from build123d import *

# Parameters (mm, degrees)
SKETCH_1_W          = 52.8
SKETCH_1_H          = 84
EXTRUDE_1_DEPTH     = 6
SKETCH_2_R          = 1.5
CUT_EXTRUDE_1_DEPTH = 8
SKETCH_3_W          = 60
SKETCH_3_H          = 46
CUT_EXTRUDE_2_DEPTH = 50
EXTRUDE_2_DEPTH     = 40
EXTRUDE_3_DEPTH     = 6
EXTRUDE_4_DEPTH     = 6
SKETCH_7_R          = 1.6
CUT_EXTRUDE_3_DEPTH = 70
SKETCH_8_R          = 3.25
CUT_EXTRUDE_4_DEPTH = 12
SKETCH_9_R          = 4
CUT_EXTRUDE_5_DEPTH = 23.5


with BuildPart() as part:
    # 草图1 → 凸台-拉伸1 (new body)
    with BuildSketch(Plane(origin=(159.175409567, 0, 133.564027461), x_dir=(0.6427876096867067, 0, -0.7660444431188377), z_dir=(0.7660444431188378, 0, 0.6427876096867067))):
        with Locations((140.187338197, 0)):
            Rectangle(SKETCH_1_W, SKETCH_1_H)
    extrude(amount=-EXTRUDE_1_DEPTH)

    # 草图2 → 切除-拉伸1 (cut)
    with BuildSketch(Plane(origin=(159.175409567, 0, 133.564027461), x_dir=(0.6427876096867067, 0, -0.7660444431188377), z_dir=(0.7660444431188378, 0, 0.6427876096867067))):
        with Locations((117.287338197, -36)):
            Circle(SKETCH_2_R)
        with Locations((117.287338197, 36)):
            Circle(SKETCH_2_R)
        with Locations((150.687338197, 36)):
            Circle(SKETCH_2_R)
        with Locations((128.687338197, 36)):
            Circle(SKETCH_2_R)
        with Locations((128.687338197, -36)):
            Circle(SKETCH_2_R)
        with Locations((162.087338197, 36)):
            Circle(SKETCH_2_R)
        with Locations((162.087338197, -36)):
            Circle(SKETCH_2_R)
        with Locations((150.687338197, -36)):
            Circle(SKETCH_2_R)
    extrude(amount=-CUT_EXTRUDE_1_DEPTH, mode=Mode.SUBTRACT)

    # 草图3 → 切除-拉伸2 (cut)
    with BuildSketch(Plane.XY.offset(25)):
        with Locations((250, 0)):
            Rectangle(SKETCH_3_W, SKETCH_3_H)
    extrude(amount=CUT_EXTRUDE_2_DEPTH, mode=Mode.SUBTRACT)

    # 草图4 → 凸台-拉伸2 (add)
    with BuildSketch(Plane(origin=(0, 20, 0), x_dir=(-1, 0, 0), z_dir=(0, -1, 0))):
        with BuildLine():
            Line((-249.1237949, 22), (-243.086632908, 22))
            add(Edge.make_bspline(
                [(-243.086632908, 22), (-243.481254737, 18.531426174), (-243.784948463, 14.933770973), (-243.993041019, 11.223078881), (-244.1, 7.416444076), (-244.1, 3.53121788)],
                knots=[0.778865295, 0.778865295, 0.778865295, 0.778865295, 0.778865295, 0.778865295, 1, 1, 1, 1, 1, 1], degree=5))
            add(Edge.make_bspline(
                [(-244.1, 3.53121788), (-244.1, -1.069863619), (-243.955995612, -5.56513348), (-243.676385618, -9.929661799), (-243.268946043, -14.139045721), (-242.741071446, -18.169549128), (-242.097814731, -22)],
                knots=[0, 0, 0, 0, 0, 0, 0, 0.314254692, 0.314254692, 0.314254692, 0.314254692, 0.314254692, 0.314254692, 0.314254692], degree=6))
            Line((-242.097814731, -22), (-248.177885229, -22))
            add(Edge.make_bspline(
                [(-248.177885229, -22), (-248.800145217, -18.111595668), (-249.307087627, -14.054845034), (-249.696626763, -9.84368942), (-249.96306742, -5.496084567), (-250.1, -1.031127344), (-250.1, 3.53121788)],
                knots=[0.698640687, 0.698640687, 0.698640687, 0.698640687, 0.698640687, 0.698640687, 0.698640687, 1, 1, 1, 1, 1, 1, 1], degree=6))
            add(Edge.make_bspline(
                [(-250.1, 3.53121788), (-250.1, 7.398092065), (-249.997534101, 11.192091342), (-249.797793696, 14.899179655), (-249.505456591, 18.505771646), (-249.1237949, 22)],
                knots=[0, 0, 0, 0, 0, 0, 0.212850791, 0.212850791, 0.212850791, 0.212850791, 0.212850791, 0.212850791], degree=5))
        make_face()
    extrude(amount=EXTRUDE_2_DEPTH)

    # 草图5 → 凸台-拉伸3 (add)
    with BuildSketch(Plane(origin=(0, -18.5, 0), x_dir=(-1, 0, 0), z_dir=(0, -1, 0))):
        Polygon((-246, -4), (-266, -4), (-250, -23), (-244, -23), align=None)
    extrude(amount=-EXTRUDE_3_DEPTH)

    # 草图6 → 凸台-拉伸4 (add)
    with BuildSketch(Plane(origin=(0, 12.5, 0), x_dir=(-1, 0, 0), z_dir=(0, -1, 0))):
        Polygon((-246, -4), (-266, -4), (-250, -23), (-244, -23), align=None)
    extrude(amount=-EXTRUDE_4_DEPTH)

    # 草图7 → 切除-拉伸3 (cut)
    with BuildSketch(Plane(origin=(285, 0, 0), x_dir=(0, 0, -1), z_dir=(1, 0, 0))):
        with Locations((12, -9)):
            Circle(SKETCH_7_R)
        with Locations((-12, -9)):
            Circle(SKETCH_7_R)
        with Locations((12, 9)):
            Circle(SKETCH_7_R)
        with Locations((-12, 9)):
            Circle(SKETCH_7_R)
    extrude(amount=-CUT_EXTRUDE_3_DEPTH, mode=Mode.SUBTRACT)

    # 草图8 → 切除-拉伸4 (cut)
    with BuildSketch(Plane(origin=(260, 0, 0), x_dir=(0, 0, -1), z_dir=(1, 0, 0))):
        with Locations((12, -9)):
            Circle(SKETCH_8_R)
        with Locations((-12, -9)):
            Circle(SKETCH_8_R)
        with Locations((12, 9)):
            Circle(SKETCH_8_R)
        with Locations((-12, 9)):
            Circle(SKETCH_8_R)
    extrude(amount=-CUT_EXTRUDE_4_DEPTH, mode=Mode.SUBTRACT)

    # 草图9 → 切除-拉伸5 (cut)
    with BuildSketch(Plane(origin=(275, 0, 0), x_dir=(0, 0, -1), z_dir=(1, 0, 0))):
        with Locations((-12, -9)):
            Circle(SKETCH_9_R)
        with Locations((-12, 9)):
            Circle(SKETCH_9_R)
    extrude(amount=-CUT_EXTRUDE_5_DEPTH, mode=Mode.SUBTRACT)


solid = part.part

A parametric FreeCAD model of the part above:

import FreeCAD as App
import Part
import Sketcher
from FreeCAD import Vector


def add_polygon(sketch, points):
    """Adds a closed chain of lines whose ends are joined by coincident constraints."""
    first, n = sketch.GeometryCount, len(points)
    for a, b in zip(points, points[1:] + points[:1]):
        sketch.addGeometry(Part.LineSegment(App.Vector(*a, 0), App.Vector(*b, 0)), False)
    for i in range(n):
        sketch.addConstraint(Sketcher.Constraint("Coincident", first + i, 2, first + (i + 1) % n, 1))

doc = App.newDocument("Part")
body = doc.addObject("PartDesign::Body", "Body")

sketch1 = doc.addObject("Sketcher::SketchObject", "Sketch")
body.addObject(sketch1)
sketch1.Placement = App.Placement(Vector(159.17541, 0, 133.564027), App.Rotation(Vector(0.64278761, 0, -0.766044443), Vector(0, 1, 0), Vector(0.766044443, 0, 0.64278761), "ZXY"))
add_polygon(sketch1, [(113.787338, 42), (113.787338, -42), (166.587338, -42), (166.587338, 42)])
sketch1.addConstraint([
    Sketcher.Constraint("Vertical", 0),
    Sketcher.Constraint("Horizontal", 1),
    Sketcher.Constraint("Vertical", 2),
    Sketcher.Constraint("Horizontal", 3),
    Sketcher.Constraint("DistanceY", 0, 2, 0, 1, 84.0),
    Sketcher.Constraint("DistanceX", 1, 1, 1, 2, 52.8),
    Sketcher.Constraint("DistanceY", 0, 2, -1, 1, 42.0),
    Sketcher.Constraint("DistanceX", -1, 1, 0, 2, 113.787338),
])
pad1 = doc.addObject("PartDesign::Pad", "Pad")
body.addObject(pad1)
pad1.Profile = sketch1
pad1.Length = 6
pad1.Reversed = True

sketch2 = doc.addObject("Sketcher::SketchObject", "Sketch001")
body.addObject(sketch2)
sketch2.Placement = App.Placement(Vector(159.17541, 0, 133.564027), App.Rotation(Vector(0.64278761, 0, -0.766044443), Vector(0, 1, 0), Vector(0.766044443, 0, 0.64278761), "ZXY"))
sketch2.addGeometry([
    Part.Circle(Vector(117.287338, -36, 0), Vector(0, 0, 1), 1.5),
    Part.Circle(Vector(117.287338, 36, 0), Vector(0, 0, 1), 1.5),
    Part.Circle(Vector(150.687338, 36, 0), Vector(0, 0, 1), 1.5),
    Part.Circle(Vector(128.687338, 36, 0), Vector(0, 0, 1), 1.5),
    Part.Circle(Vector(128.687338, -36, 0), Vector(0, 0, 1), 1.5),
    Part.Circle(Vector(162.087338, 36, 0), Vector(0, 0, 1), 1.5),
    Part.Circle(Vector(162.087338, -36, 0), Vector(0, 0, 1), 1.5),
    Part.Circle(Vector(150.687338, -36, 0), Vector(0, 0, 1), 1.5),
], False)
sketch2.addConstraint([
    Sketcher.Constraint("Equal", 0, 1),
    Sketcher.Constraint("Equal", 1, 2),
    Sketcher.Constraint("Equal", 2, 3),
    Sketcher.Constraint("Equal", 3, 4),
    Sketcher.Constraint("Equal", 4, 5),
    Sketcher.Constraint("Equal", 5, 6),
    Sketcher.Constraint("Equal", 6, 7),
    Sketcher.Constraint("Symmetric", 0, 3, 1, 3, -1),
    Sketcher.Constraint("Symmetric", 3, 3, 4, 3, -1),
    Sketcher.Constraint("Symmetric", 5, 3, 6, 3, -1),
    Sketcher.Constraint("Symmetric", 2, 3, 7, 3, -1),
    Sketcher.Constraint("Horizontal", 1, 3, 2, 3),
    Sketcher.Constraint("Horizontal", 2, 3, 3, 3),
    Sketcher.Constraint("Horizontal", 3, 3, 5, 3),
    Sketcher.Constraint("Diameter", 0, 3.0),
    Sketcher.Constraint("DistanceY", 0, 3, -1, 1, 36.0),
    Sketcher.Constraint("DistanceX", 3, 3, 2, 3, 22.0),
    Sketcher.Constraint("DistanceX", 1, 3, 2, 3, 33.4),
    Sketcher.Constraint("DistanceX", 2, 3, 5, 3, 11.4),
    Sketcher.Constraint("DistanceX", -1, 1, 0, 3, 117.287338),
])
pocket1 = doc.addObject("PartDesign::Pocket", "Pocket")
body.addObject(pocket1)
pocket1.Profile = sketch2
pocket1.Length = 8

sketch3 = doc.addObject("Sketcher::SketchObject", "Sketch002")
body.addObject(sketch3)
sketch3.AttachmentSupport = (doc.XY_Plane, [""])
sketch3.MapMode = "FlatFace"
sketch3.AttachmentOffset = App.Placement(Vector(0, 0, 25), App.Rotation())
add_polygon(sketch3, [(220, 23), (220, -23), (280, -23), (280, 23)])
sketch3.addConstraint([
    Sketcher.Constraint("Vertical", 0),
    Sketcher.Constraint("Horizontal", 1),
    Sketcher.Constraint("Vertical", 2),
    Sketcher.Constraint("Horizontal", 3),
    Sketcher.Constraint("DistanceX", 1, 1, 1, 2, 60.0),
    Sketcher.Constraint("DistanceY", 0, 2, 0, 1, 46.0),
    Sketcher.Constraint("DistanceX", -1, 1, 0, 2, 220.0),
    Sketcher.Constraint("DistanceY", 0, 2, -1, 1, 23.0),
])
pocket2 = doc.addObject("PartDesign::Pocket", "Pocket001")
body.addObject(pocket2)
pocket2.Profile = sketch3
pocket2.Length = 50
pocket2.Reversed = True

sketch4 = doc.addObject("Sketcher::SketchObject", "Sketch003")
body.addObject(sketch4)
sketch4.AttachmentSupport = (doc.XZ_Plane, [""])
sketch4.MapMode = "FlatFace"
sketch4.AttachmentOffset = App.Placement(Vector(0, 0, -20), App.Rotation())
sketch4.addGeometry([
    Part.LineSegment(Vector(243.086633, -22, 0), Vector(249.123795, -22, 0)),
    Part.BSplineCurve([Vector(248.177885, 22, 0), Vector(248.800145, 18.111596, 0), Vector(249.307088, 14.054845, 0), Vector(249.696627, 9.843689, 0), Vector(249.963067, 5.496085, 0), Vector(250.1, 1.031127, 0), Vector(250.1, -6.753613, 0), Vector(250.031689, -9.927425, 0), Vector(249.897664, -13.045635, 0), Vector(249.700348, -16.101377, 0), Vector(249.441846, -19.088143, 0), Vector(249.123795, -22, 0)], [7, 5, 7], [0.698640687, 1, 1.212850791], False, 6, [1, 1, 1, 1, 1, 1, 1, 1, 1, 1, 1, 1], False),
    Part.LineSegment(Vector(248.177885, 22, 0), Vector(242.097815, 22, 0)),
    Part.BSplineCurve([Vector(243.086633, -22, 0), Vector(243.415484, -19.109522, 0), Vector(243.683717, -16.132989, 0), Vector(243.888995, -13.078425, 0), Vector(244.028694, -9.954201, 0), Vector(244.1, -6.768906, 0), Vector(244.1, 1.069864, 0), Vector(243.955996, 5.565133, 0), Vector(243.676386, 9.929662, 0), Vector(243.268946, 14.139046, 0), Vector(242.741071, 18.169549, 0), Vector(242.097815, 22, 0)], [7, 5, 7], [0.778865295, 1, 1.314254692], False, 6, [1, 1, 1, 1, 1, 1, 1, 1, 1, 1, 1, 1], False),
], False)
sketch4.addConstraint([
    Sketcher.Constraint("Block", 1),
    Sketcher.Constraint("Block", 3),
    Sketcher.Constraint("Coincident", 0, 2, 1, 2),
    Sketcher.Constraint("Coincident", 1, 1, 2, 1),
    Sketcher.Constraint("Coincident", 2, 2, 3, 2),
    Sketcher.Constraint("Coincident", 3, 1, 0, 1),
])
pad2 = doc.addObject("PartDesign::Pad", "Pad001")
body.addObject(pad2)
pad2.Profile = sketch4
pad2.Length = 40

sketch5 = doc.addObject("Sketcher::SketchObject", "Sketch004")
body.addObject(sketch5)
sketch5.AttachmentSupport = (doc.XZ_Plane, [""])
sketch5.MapMode = "FlatFace"
sketch5.AttachmentOffset = App.Placement(Vector(0, 0, 18.5), App.Rotation())
add_polygon(sketch5, [(246, 4), (266, 4), (250, 23), (244, 23)])
sketch5.addConstraint([
    Sketcher.Constraint("Horizontal", 0),
    Sketcher.Constraint("Horizontal", 2),
    Sketcher.Constraint("DistanceX", 0, 1, 0, 2, 20.0),
    Sketcher.Constraint("DistanceX", 2, 2, 2, 1, 6.0),
    Sketcher.Constraint("DistanceX", -1, 1, 0, 2, 266.0),
    Sketcher.Constraint("DistanceY", -1, 1, 0, 2, 4.0),
    Sketcher.Constraint("DistanceX", -1, 1, 1, 2, 250.0),
    Sketcher.Constraint("DistanceY", -1, 1, 1, 2, 23.0),
])
pad3 = doc.addObject("PartDesign::Pad", "Pad002")
body.addObject(pad3)
pad3.Profile = sketch5
pad3.Length = 6
pad3.Reversed = True

sketch6 = doc.addObject("Sketcher::SketchObject", "Sketch005")
body.addObject(sketch6)
sketch6.AttachmentSupport = (doc.XZ_Plane, [""])
sketch6.MapMode = "FlatFace"
sketch6.AttachmentOffset = App.Placement(Vector(0, 0, -12.5), App.Rotation())
add_polygon(sketch6, [(246, 4), (266, 4), (250, 23), (244, 23)])
sketch6.addConstraint([
    Sketcher.Constraint("Horizontal", 0),
    Sketcher.Constraint("Horizontal", 2),
    Sketcher.Constraint("DistanceX", 0, 1, 0, 2, 20.0),
    Sketcher.Constraint("DistanceX", 2, 2, 2, 1, 6.0),
    Sketcher.Constraint("DistanceX", -1, 1, 0, 2, 266.0),
    Sketcher.Constraint("DistanceY", -1, 1, 0, 2, 4.0),
    Sketcher.Constraint("DistanceX", -1, 1, 1, 2, 250.0),
    Sketcher.Constraint("DistanceY", -1, 1, 1, 2, 23.0),
])
pad4 = doc.addObject("PartDesign::Pad", "Pad003")
body.addObject(pad4)
pad4.Profile = sketch6
pad4.Length = 6
pad4.Reversed = True

sketch7 = doc.addObject("Sketcher::SketchObject", "Sketch006")
body.addObject(sketch7)
sketch7.AttachmentSupport = (doc.YZ_Plane, [""])
sketch7.MapMode = "FlatFace"
sketch7.AttachmentOffset = App.Placement(Vector(0, 0, 285), App.Rotation())
sketch7.addGeometry([
    Part.Circle(Vector(-9, -12, 0), Vector(0, 0, 1), 1.6),
    Part.Circle(Vector(-9, 12, 0), Vector(0, 0, 1), 1.6),
    Part.Circle(Vector(9, -12, 0), Vector(0, 0, 1), 1.6),
    Part.Circle(Vector(9, 12, 0), Vector(0, 0, 1), 1.6),
], False)
sketch7.addConstraint([
    Sketcher.Constraint("Equal", 0, 1),
    Sketcher.Constraint("Equal", 1, 2),
    Sketcher.Constraint("Equal", 2, 3),
    Sketcher.Constraint("Symmetric", 1, 3, 2, 3, -1, 1),
    Sketcher.Constraint("Symmetric", 0, 3, 3, 3, -1, 1),
    Sketcher.Constraint("Symmetric", 0, 3, 2, 3, -2),
    Sketcher.Constraint("Diameter", 0, 3.2),
    Sketcher.Constraint("DistanceX", 0, 3, -1, 1, 9.0),
    Sketcher.Constraint("DistanceY", 0, 3, -1, 1, 12.0),
])
pocket3 = doc.addObject("PartDesign::Pocket", "Pocket002")
body.addObject(pocket3)
pocket3.Profile = sketch7
pocket3.Length = 70

sketch8 = doc.addObject("Sketcher::SketchObject", "Sketch007")
body.addObject(sketch8)
sketch8.AttachmentSupport = (doc.YZ_Plane, [""])
sketch8.MapMode = "FlatFace"
sketch8.AttachmentOffset = App.Placement(Vector(0, 0, 260), App.Rotation())
sketch8.addGeometry([
    Part.Circle(Vector(-9, -12, 0), Vector(0, 0, 1), 3.25),
    Part.Circle(Vector(-9, 12, 0), Vector(0, 0, 1), 3.25),
    Part.Circle(Vector(9, -12, 0), Vector(0, 0, 1), 3.25),
    Part.Circle(Vector(9, 12, 0), Vector(0, 0, 1), 3.25),
], False)
sketch8.addConstraint([
    Sketcher.Constraint("Equal", 0, 1),
    Sketcher.Constraint("Equal", 1, 2),
    Sketcher.Constraint("Equal", 2, 3),
    Sketcher.Constraint("Symmetric", 1, 3, 2, 3, -1, 1),
    Sketcher.Constraint("Symmetric", 0, 3, 3, 3, -1, 1),
    Sketcher.Constraint("Symmetric", 0, 3, 2, 3, -2),
    Sketcher.Constraint("Diameter", 0, 6.5),
    Sketcher.Constraint("DistanceX", 0, 3, -1, 1, 9.0),
    Sketcher.Constraint("DistanceY", 0, 3, -1, 1, 12.0),
])
pocket4 = doc.addObject("PartDesign::Pocket", "Pocket003")
body.addObject(pocket4)
pocket4.Profile = sketch8
pocket4.Length = 12

sketch9 = doc.addObject("Sketcher::SketchObject", "Sketch008")
body.addObject(sketch9)
sketch9.AttachmentSupport = (doc.YZ_Plane, [""])
sketch9.MapMode = "FlatFace"
sketch9.AttachmentOffset = App.Placement(Vector(0, 0, 275), App.Rotation())
sketch9.addGeometry([
    Part.Circle(Vector(-9, 12, 0), Vector(0, 0, 1), 4),
    Part.Circle(Vector(9, 12, 0), Vector(0, 0, 1), 4),
], False)
sketch9.addConstraint([
    Sketcher.Constraint("Equal", 0, 1),
    Sketcher.Constraint("Symmetric", 0, 3, 1, 3, -2),
    Sketcher.Constraint("Diameter", 0, 8.0),
    Sketcher.Constraint("DistanceX", 0, 3, -1, 1, 9.0),
    Sketcher.Constraint("DistanceY", -1, 1, 0, 3, 12.0),
])
pocket5 = doc.addObject("PartDesign::Pocket", "Pocket004")
body.addObject(pocket5)
pocket5.Profile = sketch9
pocket5.Length = 23.5

doc.recompute()
